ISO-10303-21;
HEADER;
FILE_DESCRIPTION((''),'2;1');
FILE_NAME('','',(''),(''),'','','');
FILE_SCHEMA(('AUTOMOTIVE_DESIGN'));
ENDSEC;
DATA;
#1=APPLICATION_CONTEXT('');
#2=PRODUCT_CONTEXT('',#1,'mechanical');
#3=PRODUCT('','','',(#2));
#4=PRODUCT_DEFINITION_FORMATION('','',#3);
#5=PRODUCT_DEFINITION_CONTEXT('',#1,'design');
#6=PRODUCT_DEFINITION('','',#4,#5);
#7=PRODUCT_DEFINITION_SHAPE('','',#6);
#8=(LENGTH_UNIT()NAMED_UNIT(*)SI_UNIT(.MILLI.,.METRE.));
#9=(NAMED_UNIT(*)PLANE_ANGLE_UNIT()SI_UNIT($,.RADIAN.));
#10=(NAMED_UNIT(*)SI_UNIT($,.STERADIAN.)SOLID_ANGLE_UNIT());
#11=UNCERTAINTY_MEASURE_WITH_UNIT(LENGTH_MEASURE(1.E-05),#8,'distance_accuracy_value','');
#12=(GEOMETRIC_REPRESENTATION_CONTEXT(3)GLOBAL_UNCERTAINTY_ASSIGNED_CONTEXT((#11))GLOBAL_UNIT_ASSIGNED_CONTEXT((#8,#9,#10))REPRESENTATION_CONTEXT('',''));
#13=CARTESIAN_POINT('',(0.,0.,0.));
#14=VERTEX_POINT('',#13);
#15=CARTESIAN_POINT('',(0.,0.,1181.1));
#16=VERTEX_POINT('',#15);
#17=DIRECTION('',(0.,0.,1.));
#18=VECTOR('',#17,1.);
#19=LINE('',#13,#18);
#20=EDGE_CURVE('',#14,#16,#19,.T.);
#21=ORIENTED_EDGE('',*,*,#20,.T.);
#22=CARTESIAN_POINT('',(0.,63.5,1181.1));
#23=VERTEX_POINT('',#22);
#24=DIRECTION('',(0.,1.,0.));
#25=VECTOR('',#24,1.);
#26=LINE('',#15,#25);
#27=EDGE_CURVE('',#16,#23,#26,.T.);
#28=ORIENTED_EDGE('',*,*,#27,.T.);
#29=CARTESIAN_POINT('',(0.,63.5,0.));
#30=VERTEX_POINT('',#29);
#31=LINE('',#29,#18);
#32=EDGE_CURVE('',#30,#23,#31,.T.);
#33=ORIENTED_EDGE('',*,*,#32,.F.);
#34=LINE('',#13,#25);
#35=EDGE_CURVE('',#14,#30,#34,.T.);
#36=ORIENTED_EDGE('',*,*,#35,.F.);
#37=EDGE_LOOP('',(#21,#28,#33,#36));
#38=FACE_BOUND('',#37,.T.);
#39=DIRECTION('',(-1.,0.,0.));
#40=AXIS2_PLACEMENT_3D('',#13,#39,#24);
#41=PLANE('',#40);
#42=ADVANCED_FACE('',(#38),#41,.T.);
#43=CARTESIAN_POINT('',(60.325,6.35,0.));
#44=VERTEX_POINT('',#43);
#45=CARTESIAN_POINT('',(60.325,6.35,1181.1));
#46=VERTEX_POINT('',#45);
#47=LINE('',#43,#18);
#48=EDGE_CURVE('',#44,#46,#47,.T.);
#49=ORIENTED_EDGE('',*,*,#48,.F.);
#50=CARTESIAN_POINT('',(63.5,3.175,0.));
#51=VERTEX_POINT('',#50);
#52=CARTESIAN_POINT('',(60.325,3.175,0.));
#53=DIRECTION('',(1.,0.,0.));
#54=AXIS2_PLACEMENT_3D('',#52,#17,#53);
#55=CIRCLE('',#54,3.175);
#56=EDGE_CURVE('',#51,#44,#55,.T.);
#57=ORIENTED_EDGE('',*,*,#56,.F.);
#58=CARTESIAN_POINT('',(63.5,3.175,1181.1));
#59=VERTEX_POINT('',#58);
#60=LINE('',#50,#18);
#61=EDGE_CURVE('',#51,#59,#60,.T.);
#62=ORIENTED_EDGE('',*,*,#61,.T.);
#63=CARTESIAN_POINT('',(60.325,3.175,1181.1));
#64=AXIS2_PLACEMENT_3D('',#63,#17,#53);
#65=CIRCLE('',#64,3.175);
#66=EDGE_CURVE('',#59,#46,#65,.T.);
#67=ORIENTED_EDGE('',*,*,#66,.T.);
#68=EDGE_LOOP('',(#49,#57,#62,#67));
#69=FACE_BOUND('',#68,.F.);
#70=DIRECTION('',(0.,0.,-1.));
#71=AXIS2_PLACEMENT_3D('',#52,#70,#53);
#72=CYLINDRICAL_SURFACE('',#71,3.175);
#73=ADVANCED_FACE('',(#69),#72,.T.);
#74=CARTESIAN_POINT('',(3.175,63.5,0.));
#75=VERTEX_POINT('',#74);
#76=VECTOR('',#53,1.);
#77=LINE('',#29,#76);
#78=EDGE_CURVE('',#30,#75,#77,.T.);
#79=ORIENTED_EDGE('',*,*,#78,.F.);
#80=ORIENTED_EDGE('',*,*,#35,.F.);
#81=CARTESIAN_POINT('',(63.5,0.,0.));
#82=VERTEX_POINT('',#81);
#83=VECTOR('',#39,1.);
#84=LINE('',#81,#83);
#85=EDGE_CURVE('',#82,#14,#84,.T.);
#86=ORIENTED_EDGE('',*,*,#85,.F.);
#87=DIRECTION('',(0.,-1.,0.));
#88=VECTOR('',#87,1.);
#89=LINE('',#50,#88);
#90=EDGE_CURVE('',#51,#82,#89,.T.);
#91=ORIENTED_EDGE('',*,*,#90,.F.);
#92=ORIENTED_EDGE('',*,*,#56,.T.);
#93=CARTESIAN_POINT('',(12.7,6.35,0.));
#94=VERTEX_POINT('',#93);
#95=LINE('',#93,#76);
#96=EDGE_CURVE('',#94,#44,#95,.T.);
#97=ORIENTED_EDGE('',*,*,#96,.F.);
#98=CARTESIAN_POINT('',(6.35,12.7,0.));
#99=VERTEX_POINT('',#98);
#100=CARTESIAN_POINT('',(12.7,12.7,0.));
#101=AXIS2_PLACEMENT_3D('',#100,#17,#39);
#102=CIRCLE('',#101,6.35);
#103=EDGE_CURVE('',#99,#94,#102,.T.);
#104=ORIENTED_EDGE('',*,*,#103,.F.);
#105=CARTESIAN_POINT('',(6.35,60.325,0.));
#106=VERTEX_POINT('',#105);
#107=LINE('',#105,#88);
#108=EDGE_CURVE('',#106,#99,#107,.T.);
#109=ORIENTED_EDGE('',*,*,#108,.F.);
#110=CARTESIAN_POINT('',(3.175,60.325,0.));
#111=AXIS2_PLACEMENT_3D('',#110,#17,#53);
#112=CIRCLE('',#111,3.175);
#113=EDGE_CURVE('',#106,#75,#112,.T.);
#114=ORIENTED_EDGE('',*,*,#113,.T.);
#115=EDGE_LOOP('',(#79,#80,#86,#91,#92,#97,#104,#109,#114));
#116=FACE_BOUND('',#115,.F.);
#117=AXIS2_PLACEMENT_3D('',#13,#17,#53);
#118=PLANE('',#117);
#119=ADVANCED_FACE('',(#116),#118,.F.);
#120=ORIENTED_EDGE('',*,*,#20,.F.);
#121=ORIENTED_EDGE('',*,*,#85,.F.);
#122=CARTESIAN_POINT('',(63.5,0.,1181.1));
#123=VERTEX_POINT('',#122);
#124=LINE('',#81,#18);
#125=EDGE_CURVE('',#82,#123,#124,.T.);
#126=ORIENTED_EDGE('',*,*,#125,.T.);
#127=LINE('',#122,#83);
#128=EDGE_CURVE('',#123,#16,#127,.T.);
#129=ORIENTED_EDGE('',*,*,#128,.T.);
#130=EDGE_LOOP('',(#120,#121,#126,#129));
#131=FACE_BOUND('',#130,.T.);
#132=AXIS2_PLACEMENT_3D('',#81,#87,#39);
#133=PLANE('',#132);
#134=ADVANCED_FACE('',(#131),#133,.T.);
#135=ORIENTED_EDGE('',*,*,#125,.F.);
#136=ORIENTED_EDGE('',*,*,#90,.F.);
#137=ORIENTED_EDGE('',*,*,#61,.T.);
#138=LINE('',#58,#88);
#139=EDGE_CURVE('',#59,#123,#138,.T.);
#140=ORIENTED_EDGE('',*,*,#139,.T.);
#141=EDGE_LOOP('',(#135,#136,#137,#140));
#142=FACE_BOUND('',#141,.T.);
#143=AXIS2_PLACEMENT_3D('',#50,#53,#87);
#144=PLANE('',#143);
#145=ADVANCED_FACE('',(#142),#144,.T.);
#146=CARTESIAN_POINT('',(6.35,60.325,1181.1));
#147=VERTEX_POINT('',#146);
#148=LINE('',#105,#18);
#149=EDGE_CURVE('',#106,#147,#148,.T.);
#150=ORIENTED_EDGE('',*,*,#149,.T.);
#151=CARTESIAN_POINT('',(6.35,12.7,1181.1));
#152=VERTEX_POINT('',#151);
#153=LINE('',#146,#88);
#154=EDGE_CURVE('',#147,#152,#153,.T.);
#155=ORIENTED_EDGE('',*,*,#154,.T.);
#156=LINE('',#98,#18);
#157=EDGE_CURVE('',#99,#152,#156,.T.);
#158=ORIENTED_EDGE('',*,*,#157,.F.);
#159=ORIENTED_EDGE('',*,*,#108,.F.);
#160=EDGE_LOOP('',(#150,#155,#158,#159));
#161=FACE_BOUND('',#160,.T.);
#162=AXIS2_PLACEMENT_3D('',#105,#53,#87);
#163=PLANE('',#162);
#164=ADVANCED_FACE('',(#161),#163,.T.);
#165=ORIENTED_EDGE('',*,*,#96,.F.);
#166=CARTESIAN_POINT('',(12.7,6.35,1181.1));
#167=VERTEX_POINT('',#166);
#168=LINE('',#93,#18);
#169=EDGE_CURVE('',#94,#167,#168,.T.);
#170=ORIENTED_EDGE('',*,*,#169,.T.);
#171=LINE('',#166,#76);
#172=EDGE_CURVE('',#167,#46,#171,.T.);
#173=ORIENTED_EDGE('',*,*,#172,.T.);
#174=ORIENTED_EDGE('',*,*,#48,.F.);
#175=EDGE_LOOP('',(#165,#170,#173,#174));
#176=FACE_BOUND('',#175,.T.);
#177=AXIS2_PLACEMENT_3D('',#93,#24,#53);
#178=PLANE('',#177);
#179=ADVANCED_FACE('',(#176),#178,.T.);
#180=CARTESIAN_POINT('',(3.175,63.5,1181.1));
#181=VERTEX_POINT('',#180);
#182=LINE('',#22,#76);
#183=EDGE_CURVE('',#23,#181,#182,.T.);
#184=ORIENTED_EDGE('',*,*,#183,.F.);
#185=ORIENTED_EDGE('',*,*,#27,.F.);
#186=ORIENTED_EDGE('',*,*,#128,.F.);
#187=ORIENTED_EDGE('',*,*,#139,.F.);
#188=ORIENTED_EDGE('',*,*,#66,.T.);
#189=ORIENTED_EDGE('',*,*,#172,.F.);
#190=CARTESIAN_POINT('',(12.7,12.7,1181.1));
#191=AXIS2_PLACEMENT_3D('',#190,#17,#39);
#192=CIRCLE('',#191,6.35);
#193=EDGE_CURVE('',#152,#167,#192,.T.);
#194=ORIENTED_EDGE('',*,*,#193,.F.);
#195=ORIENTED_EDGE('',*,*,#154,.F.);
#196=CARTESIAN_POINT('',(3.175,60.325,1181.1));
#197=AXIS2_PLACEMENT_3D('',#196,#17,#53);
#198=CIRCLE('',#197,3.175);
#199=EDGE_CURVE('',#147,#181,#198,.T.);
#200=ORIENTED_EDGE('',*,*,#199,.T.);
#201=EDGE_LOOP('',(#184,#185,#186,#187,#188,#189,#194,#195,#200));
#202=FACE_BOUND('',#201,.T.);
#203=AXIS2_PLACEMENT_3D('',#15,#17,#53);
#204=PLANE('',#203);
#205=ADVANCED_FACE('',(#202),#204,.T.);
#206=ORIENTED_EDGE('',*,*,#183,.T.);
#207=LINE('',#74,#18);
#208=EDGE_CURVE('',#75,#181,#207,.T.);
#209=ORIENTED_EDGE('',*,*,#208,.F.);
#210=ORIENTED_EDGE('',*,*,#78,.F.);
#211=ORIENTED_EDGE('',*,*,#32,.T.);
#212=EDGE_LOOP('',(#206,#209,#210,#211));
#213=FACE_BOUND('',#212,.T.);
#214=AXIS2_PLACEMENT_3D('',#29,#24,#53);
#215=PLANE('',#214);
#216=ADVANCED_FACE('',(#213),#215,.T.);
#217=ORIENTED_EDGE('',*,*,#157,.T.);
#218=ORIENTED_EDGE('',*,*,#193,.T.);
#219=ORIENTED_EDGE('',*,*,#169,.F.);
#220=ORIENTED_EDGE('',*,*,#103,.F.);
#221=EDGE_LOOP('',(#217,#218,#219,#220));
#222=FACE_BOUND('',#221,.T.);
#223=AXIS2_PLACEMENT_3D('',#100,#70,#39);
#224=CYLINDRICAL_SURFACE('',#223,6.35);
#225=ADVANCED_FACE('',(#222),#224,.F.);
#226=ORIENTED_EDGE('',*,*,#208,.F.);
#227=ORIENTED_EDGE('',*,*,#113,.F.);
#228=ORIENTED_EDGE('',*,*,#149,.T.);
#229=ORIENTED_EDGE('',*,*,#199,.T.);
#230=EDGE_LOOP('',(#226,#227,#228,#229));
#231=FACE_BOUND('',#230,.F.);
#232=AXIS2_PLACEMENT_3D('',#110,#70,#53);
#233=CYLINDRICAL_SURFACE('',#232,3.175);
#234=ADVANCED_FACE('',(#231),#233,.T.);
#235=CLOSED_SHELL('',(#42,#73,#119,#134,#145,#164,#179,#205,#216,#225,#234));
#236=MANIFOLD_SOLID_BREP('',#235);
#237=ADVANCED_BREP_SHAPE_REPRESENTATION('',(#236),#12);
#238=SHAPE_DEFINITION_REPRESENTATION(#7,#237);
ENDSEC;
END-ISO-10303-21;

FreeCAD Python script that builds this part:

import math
import FreeCAD as App
import Part
import Sketcher
Q = App.Units.Quantity

doc = App.newDocument("Part")
body = doc.addObject("PartDesign::Body", "Body")

# Sketch on XY plane
sketch1 = doc.addObject("Sketcher::SketchObject", "Sketch")
body.addObject(sketch1)
sketch1.AttachmentSupport = (doc.XY_Plane, [""])
sketch1.MapMode = "FlatFace"
sketch1.addGeometry([
    Part.LineSegment(App.Vector(0, 63.5, 0), App.Vector(0, 0, 0)),  # 0
    Part.LineSegment(App.Vector(0, 0, 0), App.Vector(63.5, 0, 0)),  # 1
    Part.LineSegment(App.Vector(63.5, 0, 0), App.Vector(63.5, 3.2, 0)),  # 2
    Part.ArcOfCircle(Part.Circle(App.Vector(60.3, 3.2, 0), App.Vector(0, 0, 1), 3.2), math.radians(0), math.radians(90)),  # 3
    Part.LineSegment(App.Vector(60.3, 6.3, 0), App.Vector(12.7, 6.3, 0)),  # 4
    Part.ArcOfCircle(Part.Circle(App.Vector(12.7, 12.7, 0), App.Vector(0, 0, 1), 6.3), math.radians(180), math.radians(270)),  # 5
    Part.LineSegment(App.Vector(6.3, 12.7, 0), App.Vector(6.3, 60.3, 0)),  # 6
    Part.ArcOfCircle(Part.Circle(App.Vector(3.2, 60.3, 0), App.Vector(0, 0, 1), 3.2), math.radians(0), math.radians(90)),  # 7
    Part.LineSegment(App.Vector(3.2, 63.5, 0), App.Vector(0, 63.5, 0)),  # 8
], False)
sketch1.addConstraint([
    Sketcher.Constraint("Coincident", 0, 2, 1, 1),
    Sketcher.Constraint("Coincident", 1, 2, 2, 1),
    Sketcher.Constraint("Tangent", 2, 2, 3, 1),
    Sketcher.Constraint("Tangent", 3, 2, 4, 1),
    Sketcher.Constraint("Tangent", 4, 2, 5, 2),
    Sketcher.Constraint("Tangent", 5, 1, 6, 1),
    Sketcher.Constraint("Tangent", 6, 2, 7, 1),
    Sketcher.Constraint("Tangent", 7, 2, 8, 1),
    Sketcher.Constraint("Coincident", 8, 2, 0, 1),
    Sketcher.Constraint("Vertical", 0),
    Sketcher.Constraint("Horizontal", 1),
    Sketcher.Constraint("Vertical", 2),
    Sketcher.Constraint("Horizontal", 4),
    Sketcher.Constraint("Vertical", 6),
    Sketcher.Constraint("Horizontal", 8),
    Sketcher.Constraint("Coincident", 0, 2, -1, 1),
    Sketcher.Constraint("Equal", 3, 7),
    Sketcher.Constraint("Equal", 1, 0),
    Sketcher.Constraint("Equal", 8, 2),
    Sketcher.Constraint("Radius", 5, Q("0.25 in")),
    Sketcher.Constraint("DistanceX", 1, 1, 1, 2, Q("2.5 in")),
    Sketcher.Constraint("Radius", 3, Q("0.125 in")),
    Sketcher.Constraint("DistanceX", 8, 2, 8, 1, Q("0.125 in")),
])
pad1 = doc.addObject("PartDesign::Pad", "Pad")
body.addObject(pad1)
pad1.Profile = sketch1
pad1.Length = Q("46.5 in")

doc.recompute()
